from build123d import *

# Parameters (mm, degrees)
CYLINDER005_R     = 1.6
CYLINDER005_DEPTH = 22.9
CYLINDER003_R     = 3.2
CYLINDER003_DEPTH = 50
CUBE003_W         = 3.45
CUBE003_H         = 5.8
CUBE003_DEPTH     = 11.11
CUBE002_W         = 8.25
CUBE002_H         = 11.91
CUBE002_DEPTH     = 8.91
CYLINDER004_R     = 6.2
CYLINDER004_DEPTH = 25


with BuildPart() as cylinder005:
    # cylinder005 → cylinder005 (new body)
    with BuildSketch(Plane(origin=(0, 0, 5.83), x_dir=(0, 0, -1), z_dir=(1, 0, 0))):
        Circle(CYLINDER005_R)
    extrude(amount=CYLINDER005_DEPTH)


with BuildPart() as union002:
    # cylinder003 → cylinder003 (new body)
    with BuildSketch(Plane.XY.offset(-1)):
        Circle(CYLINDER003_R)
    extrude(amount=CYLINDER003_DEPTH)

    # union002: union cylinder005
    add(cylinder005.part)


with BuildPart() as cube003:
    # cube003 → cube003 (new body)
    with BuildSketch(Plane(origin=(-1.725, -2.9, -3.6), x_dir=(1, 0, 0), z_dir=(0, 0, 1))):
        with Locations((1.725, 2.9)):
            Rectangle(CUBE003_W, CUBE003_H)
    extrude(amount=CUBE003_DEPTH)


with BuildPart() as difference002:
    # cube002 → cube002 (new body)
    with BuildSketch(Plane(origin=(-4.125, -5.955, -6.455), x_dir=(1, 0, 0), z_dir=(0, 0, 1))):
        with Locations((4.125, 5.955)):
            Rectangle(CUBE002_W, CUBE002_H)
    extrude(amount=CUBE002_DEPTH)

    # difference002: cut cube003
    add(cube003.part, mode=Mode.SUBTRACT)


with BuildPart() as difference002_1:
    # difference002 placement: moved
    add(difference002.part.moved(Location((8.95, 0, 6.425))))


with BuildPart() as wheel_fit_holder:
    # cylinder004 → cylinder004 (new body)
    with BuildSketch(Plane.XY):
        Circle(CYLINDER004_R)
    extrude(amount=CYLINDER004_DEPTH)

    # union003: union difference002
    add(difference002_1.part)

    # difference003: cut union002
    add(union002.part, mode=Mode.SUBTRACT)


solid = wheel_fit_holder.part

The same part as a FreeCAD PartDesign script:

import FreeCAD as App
import Part
import Sketcher
from FreeCAD import Vector


def add_polygon(sketch, points):
    """Adds a closed chain of lines whose ends are joined by coincident constraints."""
    first, n = sketch.GeometryCount, len(points)
    for a, b in zip(points, points[1:] + points[:1]):
        sketch.addGeometry(Part.LineSegment(App.Vector(*a, 0), App.Vector(*b, 0)), False)
    for i in range(n):
        sketch.addConstraint(Sketcher.Constraint("Coincident", first + i, 2, first + (i + 1) % n, 1))

doc = App.newDocument("Part")
params = doc.addObject("Spreadsheet::Sheet", "Params")
for row, (alias, value) in enumerate([
    ("sketch1_diameter", "3.2 mm"),
    ("pad1_length", "22.9 mm"),
    ("sketch2_diameter", "6.4 mm"),
    ("pad2_length", "50 mm"),
    ("sketch3_height", "5.8 mm"),
    ("sketch3_width", "3.45 mm"),
    ("pad3_length", "11.11 mm"),
    ("sketch4_width", "8.25 mm"),
    ("sketch4_height", "11.91 mm"),
    ("pad4_length", "8.91 mm"),
    ("sketch5_diameter", "12.4 mm"),
    ("pad5_length", "25 mm"),
], start=1):
    params.set(f"A{row}", alias)
    params.set(f"B{row}", "=" + value)
    params.setAlias(f"B{row}", alias)

body = doc.addObject("PartDesign::Body", "Body")

# Sketch on YZ plane
sketch1 = body.newObject("Sketcher::SketchObject", "Sketch")
sketch1.AttachmentSupport = (doc.getObject("YZ_Plane"), [""])
sketch1.MapMode = "FlatFace"
sketch1.addGeometry(Part.Circle(Vector(0, 5.8, 0), Vector(0, 0, 1), 1.6), False)
sketch1.addConstraint([
    Sketcher.Constraint("PointOnObject", 0, 3, -2),
    Sketcher.Constraint("Diameter", 0, 3.2),
    Sketcher.Constraint("DistanceY", -1, 1, 0, 3, 5.83),
])
sketch1.setExpression("Constraints[1]", "Params.sketch1_diameter")
pad1 = body.newObject("PartDesign::Pad", "Pad")
pad1.Profile = sketch1
pad1.setExpression("Length", "Params.pad1_length")
body2 = doc.addObject("PartDesign::Body", "Body001")

# Sketch on XY plane
sketch2 = body2.newObject("Sketcher::SketchObject", "Sketch001")
sketch2.AttachmentSupport = (doc.getObject("XY_Plane001"), [""])
sketch2.MapMode = "FlatFace"
sketch2.AttachmentOffset = App.Placement(Vector(0, 0, -1), App.Rotation())
sketch2.addGeometry(Part.Circle(Vector(0, 0, 0), Vector(0, 0, 1), 3.2), False)
sketch2.addConstraint([
    Sketcher.Constraint("Coincident", 0, 3, -1, 1),
    Sketcher.Constraint("Diameter", 0, 6.4),
])
sketch2.setExpression("Constraints[1]", "Params.sketch2_diameter")
pad2 = body2.newObject("PartDesign::Pad", "Pad001")
pad2.Profile = sketch2
pad2.setExpression("Length", "Params.pad2_length")
doc.recompute()

boolean = body2.newObject("PartDesign::Boolean", "Boolean")
boolean.Type = "Fuse"
boolean.addObjects([body])
body3 = doc.addObject("PartDesign::Body", "Body002")

# Sketch on XY plane
sketch3 = body3.newObject("Sketcher::SketchObject", "Sketch002")
sketch3.AttachmentSupport = (doc.getObject("XY_Plane002"), [""])
sketch3.MapMode = "FlatFace"
sketch3.AttachmentOffset = App.Placement(Vector(0, 0, -3.6), App.Rotation())
add_polygon(sketch3, [(-1.7, 2.9), (-1.7, -2.9), (1.7, -2.9), (1.7, 2.9)])  # lines 0-3
sketch3.addConstraint([
    Sketcher.Constraint("Vertical", 0),
    Sketcher.Constraint("Horizontal", 1),
    Sketcher.Constraint("Vertical", 2),
    Sketcher.Constraint("Horizontal", 3),
    Sketcher.Constraint("Symmetric", 0, 2, 2, 2, -1, 1),
    Sketcher.Constraint("DistanceY", 0, 2, 0, 1, 5.8),
    Sketcher.Constraint("DistanceX", 1, 1, 1, 2, 3.45),
])
sketch3.setExpression("Constraints[9]", "Params.sketch3_height")
sketch3.setExpression("Constraints[10]", "Params.sketch3_width")
pad3 = body3.newObject("PartDesign::Pad", "Pad002")
pad3.Profile = sketch3
pad3.setExpression("Length", "Params.pad3_length")
body4 = doc.addObject("PartDesign::Body", "Body003")

# Sketch on XY plane
sketch4 = body4.newObject("Sketcher::SketchObject", "Sketch003")
sketch4.AttachmentSupport = (doc.getObject("XY_Plane003"), [""])
sketch4.MapMode = "FlatFace"
sketch4.AttachmentOffset = App.Placement(Vector(0, 0, -6.455), App.Rotation())
add_polygon(sketch4, [(-4, 6), (-4, -6), (4, -6), (4, 6)])  # lines 0-3
sketch4.addConstraint([
    Sketcher.Constraint("Vertical", 0),
    Sketcher.Constraint("Horizontal", 1),
    Sketcher.Constraint("Vertical", 2),
    Sketcher.Constraint("Horizontal", 3),
    Sketcher.Constraint("Symmetric", 0, 2, 2, 2, -1, 1),
    Sketcher.Constraint("DistanceX", 1, 1, 1, 2, 8.25),
    Sketcher.Constraint("DistanceY", 0, 2, 0, 1, 11.91),
])
sketch4.setExpression("Constraints[9]", "Params.sketch4_width")
sketch4.setExpression("Constraints[10]", "Params.sketch4_height")
pad4 = body4.newObject("PartDesign::Pad", "Pad003")
pad4.Profile = sketch4
pad4.setExpression("Length", "Params.pad4_length")
doc.recompute()

boolean2 = body4.newObject("PartDesign::Boolean", "Boolean001")
boolean2.Type = "Cut"
boolean2.addObjects([body3])
body5 = doc.addObject("PartDesign::Body", "Body004")
doc.recompute()

body4.Placement = App.Placement(Vector(8.95, 0, 6.425), App.Rotation(Vector(0, 0, 1), 0))
boolean3 = body5.newObject("PartDesign::Boolean", "Boolean002")
boolean3.Type = "Fuse"
boolean3.addObjects([body4])
body6 = doc.addObject("PartDesign::Body", "Body005")

# Sketch on XY plane
sketch5 = body6.newObject("Sketcher::SketchObject", "Sketch004")
sketch5.AttachmentSupport = (doc.getObject("XY_Plane005"), [""])
sketch5.MapMode = "FlatFace"
sketch5.addGeometry(Part.Circle(Vector(0, 0, 0), Vector(0, 0, 1), 6), False)
sketch5.addConstraint([
    Sketcher.Constraint("Coincident", 0, 3, -1, 1),
    Sketcher.Constraint("Diameter", 0, 12.4),
])
sketch5.setExpression("Constraints[1]", "Params.sketch5_diameter")
pad5 = body6.newObject("PartDesign::Pad", "Pad004")
pad5.Profile = sketch5
pad5.setExpression("Length", "Params.pad5_length")
doc.recompute()

boolean4 = body6.newObject("PartDesign::Boolean", "Boolean003")
boolean4.Type = "Fuse"
boolean4.addObjects([body5])
doc.recompute()

boolean5 = body6.newObject("PartDesign::Boolean", "Boolean004")
boolean5.Type = "Cut"
boolean5.addObjects([body2])

doc.recompute()
